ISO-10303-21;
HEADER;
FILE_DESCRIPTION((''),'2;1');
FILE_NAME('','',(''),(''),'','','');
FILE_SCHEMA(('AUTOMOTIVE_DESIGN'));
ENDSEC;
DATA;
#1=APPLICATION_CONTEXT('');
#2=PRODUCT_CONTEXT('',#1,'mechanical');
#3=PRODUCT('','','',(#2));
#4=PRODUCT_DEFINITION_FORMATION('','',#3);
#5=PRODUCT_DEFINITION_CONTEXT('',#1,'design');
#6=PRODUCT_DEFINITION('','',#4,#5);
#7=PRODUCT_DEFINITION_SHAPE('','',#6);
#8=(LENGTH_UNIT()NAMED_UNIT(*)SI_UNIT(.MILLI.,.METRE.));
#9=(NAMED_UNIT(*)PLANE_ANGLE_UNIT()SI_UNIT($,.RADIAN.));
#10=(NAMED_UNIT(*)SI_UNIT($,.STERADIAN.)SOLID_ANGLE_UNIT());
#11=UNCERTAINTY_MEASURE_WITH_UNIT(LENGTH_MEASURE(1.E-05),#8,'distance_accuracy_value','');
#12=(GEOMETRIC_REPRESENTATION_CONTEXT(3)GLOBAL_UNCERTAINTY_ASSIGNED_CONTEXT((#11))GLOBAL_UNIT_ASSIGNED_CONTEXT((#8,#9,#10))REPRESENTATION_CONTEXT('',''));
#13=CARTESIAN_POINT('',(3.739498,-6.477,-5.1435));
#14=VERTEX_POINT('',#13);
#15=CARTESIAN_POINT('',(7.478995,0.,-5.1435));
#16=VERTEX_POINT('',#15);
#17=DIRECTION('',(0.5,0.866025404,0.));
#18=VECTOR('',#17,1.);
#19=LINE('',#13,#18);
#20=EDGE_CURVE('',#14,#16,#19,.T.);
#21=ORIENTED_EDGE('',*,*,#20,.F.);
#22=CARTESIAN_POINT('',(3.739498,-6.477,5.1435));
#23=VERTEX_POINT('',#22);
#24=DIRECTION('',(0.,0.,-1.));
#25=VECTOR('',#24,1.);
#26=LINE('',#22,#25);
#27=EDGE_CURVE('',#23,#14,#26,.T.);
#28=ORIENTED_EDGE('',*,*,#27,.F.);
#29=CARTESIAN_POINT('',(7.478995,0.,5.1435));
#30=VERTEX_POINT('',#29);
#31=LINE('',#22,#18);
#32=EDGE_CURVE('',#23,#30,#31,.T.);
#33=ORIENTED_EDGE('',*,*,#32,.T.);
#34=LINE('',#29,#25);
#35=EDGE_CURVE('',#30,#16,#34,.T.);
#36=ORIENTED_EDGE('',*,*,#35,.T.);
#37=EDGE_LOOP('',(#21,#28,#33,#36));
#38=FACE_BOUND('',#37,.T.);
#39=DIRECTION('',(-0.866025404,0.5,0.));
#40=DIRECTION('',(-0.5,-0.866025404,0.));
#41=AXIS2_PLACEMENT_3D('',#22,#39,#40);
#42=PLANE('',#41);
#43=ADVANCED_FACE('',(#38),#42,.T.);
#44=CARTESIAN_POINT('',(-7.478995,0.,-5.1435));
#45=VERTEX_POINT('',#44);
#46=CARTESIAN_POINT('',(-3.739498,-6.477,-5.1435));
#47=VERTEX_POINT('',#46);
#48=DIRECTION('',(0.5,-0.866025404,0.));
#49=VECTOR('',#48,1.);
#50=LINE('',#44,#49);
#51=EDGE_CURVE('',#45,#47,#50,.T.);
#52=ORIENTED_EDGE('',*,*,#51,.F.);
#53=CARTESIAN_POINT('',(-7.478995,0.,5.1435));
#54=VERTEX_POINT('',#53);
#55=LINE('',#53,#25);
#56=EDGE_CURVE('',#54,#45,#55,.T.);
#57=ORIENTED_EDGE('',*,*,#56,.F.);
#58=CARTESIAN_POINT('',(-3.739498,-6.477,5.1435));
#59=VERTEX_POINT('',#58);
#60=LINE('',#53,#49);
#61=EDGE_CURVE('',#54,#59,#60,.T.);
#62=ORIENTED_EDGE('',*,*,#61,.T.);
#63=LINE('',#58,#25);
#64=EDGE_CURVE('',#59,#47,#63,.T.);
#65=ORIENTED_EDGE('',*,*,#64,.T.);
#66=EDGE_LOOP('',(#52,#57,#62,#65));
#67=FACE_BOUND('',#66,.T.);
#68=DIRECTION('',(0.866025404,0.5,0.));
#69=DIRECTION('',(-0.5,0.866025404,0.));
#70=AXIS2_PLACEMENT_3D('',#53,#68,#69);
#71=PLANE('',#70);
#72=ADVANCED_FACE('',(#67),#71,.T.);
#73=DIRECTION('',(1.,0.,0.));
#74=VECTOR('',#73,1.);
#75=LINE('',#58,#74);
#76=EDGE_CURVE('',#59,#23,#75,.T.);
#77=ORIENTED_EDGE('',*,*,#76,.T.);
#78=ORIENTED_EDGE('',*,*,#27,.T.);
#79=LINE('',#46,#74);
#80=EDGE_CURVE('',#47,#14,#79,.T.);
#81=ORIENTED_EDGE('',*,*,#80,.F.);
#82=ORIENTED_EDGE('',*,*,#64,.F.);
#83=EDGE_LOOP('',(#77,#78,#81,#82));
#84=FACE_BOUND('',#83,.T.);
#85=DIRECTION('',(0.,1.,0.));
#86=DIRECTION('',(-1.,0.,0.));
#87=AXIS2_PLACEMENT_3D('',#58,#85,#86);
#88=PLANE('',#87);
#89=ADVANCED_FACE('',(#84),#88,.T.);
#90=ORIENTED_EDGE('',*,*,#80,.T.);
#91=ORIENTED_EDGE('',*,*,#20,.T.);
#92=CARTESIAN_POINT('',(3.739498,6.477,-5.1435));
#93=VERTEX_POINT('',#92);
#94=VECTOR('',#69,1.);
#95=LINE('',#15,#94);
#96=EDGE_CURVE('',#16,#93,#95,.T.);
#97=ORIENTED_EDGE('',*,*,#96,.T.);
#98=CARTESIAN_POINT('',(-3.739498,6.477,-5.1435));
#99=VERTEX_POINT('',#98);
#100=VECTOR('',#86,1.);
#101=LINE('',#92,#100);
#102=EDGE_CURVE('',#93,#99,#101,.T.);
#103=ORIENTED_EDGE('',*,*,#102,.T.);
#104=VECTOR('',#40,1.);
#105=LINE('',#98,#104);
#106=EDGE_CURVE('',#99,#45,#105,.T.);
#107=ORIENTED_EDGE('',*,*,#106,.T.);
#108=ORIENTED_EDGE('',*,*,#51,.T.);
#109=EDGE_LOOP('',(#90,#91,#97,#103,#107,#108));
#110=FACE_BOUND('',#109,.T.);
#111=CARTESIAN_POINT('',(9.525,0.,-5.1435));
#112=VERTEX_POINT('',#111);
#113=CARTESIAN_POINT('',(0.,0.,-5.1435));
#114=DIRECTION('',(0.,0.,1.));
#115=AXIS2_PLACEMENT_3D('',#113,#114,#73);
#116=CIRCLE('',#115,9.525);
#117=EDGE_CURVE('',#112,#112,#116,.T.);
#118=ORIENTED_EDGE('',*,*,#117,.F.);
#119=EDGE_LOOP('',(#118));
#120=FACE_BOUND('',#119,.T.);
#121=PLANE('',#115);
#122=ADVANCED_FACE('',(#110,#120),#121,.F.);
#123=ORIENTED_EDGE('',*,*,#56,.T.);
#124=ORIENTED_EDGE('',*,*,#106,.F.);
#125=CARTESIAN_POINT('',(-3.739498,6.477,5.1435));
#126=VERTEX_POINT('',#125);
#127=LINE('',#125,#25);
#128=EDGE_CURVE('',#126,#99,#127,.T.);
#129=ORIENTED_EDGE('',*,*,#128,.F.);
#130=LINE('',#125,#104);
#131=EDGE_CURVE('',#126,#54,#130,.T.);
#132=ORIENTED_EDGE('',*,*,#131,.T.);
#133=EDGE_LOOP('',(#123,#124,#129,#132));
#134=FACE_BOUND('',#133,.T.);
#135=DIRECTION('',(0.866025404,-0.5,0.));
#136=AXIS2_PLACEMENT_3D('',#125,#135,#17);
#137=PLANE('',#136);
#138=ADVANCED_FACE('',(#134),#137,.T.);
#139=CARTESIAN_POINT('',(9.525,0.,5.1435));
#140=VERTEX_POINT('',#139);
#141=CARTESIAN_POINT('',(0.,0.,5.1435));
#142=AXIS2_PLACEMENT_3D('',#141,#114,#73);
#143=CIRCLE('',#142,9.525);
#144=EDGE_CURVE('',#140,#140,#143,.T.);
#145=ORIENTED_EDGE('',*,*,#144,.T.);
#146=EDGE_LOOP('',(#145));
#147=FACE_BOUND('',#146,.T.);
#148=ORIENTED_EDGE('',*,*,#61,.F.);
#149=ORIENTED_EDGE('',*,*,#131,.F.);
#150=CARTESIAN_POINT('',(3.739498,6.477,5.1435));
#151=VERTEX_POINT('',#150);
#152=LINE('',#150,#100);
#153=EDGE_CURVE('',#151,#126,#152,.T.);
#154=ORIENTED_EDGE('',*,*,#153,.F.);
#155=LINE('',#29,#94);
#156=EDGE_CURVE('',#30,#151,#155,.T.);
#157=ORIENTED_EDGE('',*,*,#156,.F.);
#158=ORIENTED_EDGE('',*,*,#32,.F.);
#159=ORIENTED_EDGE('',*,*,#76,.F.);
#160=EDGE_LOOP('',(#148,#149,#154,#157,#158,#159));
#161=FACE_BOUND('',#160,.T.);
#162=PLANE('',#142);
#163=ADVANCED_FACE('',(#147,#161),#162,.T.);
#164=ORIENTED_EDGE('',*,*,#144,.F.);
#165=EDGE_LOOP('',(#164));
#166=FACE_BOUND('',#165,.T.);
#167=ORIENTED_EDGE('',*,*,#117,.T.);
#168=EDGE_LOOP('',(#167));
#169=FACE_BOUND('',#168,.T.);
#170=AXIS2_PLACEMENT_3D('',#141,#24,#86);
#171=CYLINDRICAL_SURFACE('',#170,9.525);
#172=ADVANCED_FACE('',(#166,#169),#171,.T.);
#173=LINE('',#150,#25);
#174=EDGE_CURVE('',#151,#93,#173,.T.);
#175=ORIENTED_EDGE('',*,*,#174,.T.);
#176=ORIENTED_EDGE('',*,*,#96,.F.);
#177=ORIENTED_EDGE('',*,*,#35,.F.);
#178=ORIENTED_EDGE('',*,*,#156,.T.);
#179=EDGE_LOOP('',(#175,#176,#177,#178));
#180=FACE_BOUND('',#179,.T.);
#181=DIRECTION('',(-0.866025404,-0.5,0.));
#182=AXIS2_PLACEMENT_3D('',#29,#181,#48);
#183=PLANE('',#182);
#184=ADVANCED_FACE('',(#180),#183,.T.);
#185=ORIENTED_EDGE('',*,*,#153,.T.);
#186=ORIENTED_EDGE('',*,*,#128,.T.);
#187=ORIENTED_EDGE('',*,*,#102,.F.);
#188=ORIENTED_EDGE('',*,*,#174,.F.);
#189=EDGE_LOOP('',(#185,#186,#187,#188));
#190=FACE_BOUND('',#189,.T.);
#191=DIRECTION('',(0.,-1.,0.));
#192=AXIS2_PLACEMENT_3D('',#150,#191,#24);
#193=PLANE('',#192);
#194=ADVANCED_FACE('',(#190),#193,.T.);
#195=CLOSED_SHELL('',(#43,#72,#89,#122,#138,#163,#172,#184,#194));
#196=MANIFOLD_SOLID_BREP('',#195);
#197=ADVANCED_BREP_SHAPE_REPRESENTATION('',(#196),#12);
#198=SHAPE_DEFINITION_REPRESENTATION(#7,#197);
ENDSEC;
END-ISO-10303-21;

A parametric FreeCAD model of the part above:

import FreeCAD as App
import Part
import Sketcher
Q = App.Units.Quantity


def add_polygon(sketch, points):
    """Adds a closed chain of lines whose ends are joined by coincident constraints."""
    first, n = sketch.GeometryCount, len(points)
    for a, b in zip(points, points[1:] + points[:1]):
        sketch.addGeometry(Part.LineSegment(App.Vector(*a, 0), App.Vector(*b, 0)), False)
    for i in range(n):
        sketch.addConstraint(Sketcher.Constraint("Coincident", first + i, 2, first + (i + 1) % n, 1))

doc = App.newDocument("Part")
body = doc.addObject("PartDesign::Body", "Body")

# Sketch on XY plane
sketch1 = body.newObject("Sketcher::SketchObject", "Sketch")
sketch1.AttachmentSupport = (doc.getObject("XY_Plane"), [""])
sketch1.MapMode = "FlatFace"
sketch1.addGeometry(Part.Circle(App.Vector(0, 0, 0), App.Vector(0, 0, 1), 10), False)  # 0
add_polygon(sketch1, [(4, 6), (7, 0), (4, -6), (-4, -6), (-7, 0), (-4, 6)])  # lines 1-6
sketch1.addConstraint([
    Sketcher.Constraint("Horizontal", 3),
    Sketcher.Constraint("Horizontal", 6),
    Sketcher.Constraint("Coincident", 0, 3, -1, 1),
    Sketcher.Constraint("Symmetric", 1, 2, 4, 2, -1, 1),
    Sketcher.Constraint("Symmetric", 2, 2, 5, 2, -1, 1),
    Sketcher.Constraint("PointOnObject", 1, 2, -1),
    Sketcher.Constraint("Parallel", 1, 4),
    Sketcher.Constraint("Vertical", 3, 2, 5, 2),
    Sketcher.Constraint("Diameter", 0, Q("0.75 in")),
    Sketcher.Constraint("Angle", 1, Q("-60 deg")),
    Sketcher.Constraint("DistanceY", 3, 2, 5, 2, Q("0.51 in")),
    Sketcher.Constraint("DistanceX", 3, 2, 3, 1, 7.478995),
])
pad1 = body.newObject("PartDesign::Pad", "Pad")
pad1.Profile = sketch1
pad1.Length = Q("0.405 in")
pad1.Midplane = True

doc.recompute()
